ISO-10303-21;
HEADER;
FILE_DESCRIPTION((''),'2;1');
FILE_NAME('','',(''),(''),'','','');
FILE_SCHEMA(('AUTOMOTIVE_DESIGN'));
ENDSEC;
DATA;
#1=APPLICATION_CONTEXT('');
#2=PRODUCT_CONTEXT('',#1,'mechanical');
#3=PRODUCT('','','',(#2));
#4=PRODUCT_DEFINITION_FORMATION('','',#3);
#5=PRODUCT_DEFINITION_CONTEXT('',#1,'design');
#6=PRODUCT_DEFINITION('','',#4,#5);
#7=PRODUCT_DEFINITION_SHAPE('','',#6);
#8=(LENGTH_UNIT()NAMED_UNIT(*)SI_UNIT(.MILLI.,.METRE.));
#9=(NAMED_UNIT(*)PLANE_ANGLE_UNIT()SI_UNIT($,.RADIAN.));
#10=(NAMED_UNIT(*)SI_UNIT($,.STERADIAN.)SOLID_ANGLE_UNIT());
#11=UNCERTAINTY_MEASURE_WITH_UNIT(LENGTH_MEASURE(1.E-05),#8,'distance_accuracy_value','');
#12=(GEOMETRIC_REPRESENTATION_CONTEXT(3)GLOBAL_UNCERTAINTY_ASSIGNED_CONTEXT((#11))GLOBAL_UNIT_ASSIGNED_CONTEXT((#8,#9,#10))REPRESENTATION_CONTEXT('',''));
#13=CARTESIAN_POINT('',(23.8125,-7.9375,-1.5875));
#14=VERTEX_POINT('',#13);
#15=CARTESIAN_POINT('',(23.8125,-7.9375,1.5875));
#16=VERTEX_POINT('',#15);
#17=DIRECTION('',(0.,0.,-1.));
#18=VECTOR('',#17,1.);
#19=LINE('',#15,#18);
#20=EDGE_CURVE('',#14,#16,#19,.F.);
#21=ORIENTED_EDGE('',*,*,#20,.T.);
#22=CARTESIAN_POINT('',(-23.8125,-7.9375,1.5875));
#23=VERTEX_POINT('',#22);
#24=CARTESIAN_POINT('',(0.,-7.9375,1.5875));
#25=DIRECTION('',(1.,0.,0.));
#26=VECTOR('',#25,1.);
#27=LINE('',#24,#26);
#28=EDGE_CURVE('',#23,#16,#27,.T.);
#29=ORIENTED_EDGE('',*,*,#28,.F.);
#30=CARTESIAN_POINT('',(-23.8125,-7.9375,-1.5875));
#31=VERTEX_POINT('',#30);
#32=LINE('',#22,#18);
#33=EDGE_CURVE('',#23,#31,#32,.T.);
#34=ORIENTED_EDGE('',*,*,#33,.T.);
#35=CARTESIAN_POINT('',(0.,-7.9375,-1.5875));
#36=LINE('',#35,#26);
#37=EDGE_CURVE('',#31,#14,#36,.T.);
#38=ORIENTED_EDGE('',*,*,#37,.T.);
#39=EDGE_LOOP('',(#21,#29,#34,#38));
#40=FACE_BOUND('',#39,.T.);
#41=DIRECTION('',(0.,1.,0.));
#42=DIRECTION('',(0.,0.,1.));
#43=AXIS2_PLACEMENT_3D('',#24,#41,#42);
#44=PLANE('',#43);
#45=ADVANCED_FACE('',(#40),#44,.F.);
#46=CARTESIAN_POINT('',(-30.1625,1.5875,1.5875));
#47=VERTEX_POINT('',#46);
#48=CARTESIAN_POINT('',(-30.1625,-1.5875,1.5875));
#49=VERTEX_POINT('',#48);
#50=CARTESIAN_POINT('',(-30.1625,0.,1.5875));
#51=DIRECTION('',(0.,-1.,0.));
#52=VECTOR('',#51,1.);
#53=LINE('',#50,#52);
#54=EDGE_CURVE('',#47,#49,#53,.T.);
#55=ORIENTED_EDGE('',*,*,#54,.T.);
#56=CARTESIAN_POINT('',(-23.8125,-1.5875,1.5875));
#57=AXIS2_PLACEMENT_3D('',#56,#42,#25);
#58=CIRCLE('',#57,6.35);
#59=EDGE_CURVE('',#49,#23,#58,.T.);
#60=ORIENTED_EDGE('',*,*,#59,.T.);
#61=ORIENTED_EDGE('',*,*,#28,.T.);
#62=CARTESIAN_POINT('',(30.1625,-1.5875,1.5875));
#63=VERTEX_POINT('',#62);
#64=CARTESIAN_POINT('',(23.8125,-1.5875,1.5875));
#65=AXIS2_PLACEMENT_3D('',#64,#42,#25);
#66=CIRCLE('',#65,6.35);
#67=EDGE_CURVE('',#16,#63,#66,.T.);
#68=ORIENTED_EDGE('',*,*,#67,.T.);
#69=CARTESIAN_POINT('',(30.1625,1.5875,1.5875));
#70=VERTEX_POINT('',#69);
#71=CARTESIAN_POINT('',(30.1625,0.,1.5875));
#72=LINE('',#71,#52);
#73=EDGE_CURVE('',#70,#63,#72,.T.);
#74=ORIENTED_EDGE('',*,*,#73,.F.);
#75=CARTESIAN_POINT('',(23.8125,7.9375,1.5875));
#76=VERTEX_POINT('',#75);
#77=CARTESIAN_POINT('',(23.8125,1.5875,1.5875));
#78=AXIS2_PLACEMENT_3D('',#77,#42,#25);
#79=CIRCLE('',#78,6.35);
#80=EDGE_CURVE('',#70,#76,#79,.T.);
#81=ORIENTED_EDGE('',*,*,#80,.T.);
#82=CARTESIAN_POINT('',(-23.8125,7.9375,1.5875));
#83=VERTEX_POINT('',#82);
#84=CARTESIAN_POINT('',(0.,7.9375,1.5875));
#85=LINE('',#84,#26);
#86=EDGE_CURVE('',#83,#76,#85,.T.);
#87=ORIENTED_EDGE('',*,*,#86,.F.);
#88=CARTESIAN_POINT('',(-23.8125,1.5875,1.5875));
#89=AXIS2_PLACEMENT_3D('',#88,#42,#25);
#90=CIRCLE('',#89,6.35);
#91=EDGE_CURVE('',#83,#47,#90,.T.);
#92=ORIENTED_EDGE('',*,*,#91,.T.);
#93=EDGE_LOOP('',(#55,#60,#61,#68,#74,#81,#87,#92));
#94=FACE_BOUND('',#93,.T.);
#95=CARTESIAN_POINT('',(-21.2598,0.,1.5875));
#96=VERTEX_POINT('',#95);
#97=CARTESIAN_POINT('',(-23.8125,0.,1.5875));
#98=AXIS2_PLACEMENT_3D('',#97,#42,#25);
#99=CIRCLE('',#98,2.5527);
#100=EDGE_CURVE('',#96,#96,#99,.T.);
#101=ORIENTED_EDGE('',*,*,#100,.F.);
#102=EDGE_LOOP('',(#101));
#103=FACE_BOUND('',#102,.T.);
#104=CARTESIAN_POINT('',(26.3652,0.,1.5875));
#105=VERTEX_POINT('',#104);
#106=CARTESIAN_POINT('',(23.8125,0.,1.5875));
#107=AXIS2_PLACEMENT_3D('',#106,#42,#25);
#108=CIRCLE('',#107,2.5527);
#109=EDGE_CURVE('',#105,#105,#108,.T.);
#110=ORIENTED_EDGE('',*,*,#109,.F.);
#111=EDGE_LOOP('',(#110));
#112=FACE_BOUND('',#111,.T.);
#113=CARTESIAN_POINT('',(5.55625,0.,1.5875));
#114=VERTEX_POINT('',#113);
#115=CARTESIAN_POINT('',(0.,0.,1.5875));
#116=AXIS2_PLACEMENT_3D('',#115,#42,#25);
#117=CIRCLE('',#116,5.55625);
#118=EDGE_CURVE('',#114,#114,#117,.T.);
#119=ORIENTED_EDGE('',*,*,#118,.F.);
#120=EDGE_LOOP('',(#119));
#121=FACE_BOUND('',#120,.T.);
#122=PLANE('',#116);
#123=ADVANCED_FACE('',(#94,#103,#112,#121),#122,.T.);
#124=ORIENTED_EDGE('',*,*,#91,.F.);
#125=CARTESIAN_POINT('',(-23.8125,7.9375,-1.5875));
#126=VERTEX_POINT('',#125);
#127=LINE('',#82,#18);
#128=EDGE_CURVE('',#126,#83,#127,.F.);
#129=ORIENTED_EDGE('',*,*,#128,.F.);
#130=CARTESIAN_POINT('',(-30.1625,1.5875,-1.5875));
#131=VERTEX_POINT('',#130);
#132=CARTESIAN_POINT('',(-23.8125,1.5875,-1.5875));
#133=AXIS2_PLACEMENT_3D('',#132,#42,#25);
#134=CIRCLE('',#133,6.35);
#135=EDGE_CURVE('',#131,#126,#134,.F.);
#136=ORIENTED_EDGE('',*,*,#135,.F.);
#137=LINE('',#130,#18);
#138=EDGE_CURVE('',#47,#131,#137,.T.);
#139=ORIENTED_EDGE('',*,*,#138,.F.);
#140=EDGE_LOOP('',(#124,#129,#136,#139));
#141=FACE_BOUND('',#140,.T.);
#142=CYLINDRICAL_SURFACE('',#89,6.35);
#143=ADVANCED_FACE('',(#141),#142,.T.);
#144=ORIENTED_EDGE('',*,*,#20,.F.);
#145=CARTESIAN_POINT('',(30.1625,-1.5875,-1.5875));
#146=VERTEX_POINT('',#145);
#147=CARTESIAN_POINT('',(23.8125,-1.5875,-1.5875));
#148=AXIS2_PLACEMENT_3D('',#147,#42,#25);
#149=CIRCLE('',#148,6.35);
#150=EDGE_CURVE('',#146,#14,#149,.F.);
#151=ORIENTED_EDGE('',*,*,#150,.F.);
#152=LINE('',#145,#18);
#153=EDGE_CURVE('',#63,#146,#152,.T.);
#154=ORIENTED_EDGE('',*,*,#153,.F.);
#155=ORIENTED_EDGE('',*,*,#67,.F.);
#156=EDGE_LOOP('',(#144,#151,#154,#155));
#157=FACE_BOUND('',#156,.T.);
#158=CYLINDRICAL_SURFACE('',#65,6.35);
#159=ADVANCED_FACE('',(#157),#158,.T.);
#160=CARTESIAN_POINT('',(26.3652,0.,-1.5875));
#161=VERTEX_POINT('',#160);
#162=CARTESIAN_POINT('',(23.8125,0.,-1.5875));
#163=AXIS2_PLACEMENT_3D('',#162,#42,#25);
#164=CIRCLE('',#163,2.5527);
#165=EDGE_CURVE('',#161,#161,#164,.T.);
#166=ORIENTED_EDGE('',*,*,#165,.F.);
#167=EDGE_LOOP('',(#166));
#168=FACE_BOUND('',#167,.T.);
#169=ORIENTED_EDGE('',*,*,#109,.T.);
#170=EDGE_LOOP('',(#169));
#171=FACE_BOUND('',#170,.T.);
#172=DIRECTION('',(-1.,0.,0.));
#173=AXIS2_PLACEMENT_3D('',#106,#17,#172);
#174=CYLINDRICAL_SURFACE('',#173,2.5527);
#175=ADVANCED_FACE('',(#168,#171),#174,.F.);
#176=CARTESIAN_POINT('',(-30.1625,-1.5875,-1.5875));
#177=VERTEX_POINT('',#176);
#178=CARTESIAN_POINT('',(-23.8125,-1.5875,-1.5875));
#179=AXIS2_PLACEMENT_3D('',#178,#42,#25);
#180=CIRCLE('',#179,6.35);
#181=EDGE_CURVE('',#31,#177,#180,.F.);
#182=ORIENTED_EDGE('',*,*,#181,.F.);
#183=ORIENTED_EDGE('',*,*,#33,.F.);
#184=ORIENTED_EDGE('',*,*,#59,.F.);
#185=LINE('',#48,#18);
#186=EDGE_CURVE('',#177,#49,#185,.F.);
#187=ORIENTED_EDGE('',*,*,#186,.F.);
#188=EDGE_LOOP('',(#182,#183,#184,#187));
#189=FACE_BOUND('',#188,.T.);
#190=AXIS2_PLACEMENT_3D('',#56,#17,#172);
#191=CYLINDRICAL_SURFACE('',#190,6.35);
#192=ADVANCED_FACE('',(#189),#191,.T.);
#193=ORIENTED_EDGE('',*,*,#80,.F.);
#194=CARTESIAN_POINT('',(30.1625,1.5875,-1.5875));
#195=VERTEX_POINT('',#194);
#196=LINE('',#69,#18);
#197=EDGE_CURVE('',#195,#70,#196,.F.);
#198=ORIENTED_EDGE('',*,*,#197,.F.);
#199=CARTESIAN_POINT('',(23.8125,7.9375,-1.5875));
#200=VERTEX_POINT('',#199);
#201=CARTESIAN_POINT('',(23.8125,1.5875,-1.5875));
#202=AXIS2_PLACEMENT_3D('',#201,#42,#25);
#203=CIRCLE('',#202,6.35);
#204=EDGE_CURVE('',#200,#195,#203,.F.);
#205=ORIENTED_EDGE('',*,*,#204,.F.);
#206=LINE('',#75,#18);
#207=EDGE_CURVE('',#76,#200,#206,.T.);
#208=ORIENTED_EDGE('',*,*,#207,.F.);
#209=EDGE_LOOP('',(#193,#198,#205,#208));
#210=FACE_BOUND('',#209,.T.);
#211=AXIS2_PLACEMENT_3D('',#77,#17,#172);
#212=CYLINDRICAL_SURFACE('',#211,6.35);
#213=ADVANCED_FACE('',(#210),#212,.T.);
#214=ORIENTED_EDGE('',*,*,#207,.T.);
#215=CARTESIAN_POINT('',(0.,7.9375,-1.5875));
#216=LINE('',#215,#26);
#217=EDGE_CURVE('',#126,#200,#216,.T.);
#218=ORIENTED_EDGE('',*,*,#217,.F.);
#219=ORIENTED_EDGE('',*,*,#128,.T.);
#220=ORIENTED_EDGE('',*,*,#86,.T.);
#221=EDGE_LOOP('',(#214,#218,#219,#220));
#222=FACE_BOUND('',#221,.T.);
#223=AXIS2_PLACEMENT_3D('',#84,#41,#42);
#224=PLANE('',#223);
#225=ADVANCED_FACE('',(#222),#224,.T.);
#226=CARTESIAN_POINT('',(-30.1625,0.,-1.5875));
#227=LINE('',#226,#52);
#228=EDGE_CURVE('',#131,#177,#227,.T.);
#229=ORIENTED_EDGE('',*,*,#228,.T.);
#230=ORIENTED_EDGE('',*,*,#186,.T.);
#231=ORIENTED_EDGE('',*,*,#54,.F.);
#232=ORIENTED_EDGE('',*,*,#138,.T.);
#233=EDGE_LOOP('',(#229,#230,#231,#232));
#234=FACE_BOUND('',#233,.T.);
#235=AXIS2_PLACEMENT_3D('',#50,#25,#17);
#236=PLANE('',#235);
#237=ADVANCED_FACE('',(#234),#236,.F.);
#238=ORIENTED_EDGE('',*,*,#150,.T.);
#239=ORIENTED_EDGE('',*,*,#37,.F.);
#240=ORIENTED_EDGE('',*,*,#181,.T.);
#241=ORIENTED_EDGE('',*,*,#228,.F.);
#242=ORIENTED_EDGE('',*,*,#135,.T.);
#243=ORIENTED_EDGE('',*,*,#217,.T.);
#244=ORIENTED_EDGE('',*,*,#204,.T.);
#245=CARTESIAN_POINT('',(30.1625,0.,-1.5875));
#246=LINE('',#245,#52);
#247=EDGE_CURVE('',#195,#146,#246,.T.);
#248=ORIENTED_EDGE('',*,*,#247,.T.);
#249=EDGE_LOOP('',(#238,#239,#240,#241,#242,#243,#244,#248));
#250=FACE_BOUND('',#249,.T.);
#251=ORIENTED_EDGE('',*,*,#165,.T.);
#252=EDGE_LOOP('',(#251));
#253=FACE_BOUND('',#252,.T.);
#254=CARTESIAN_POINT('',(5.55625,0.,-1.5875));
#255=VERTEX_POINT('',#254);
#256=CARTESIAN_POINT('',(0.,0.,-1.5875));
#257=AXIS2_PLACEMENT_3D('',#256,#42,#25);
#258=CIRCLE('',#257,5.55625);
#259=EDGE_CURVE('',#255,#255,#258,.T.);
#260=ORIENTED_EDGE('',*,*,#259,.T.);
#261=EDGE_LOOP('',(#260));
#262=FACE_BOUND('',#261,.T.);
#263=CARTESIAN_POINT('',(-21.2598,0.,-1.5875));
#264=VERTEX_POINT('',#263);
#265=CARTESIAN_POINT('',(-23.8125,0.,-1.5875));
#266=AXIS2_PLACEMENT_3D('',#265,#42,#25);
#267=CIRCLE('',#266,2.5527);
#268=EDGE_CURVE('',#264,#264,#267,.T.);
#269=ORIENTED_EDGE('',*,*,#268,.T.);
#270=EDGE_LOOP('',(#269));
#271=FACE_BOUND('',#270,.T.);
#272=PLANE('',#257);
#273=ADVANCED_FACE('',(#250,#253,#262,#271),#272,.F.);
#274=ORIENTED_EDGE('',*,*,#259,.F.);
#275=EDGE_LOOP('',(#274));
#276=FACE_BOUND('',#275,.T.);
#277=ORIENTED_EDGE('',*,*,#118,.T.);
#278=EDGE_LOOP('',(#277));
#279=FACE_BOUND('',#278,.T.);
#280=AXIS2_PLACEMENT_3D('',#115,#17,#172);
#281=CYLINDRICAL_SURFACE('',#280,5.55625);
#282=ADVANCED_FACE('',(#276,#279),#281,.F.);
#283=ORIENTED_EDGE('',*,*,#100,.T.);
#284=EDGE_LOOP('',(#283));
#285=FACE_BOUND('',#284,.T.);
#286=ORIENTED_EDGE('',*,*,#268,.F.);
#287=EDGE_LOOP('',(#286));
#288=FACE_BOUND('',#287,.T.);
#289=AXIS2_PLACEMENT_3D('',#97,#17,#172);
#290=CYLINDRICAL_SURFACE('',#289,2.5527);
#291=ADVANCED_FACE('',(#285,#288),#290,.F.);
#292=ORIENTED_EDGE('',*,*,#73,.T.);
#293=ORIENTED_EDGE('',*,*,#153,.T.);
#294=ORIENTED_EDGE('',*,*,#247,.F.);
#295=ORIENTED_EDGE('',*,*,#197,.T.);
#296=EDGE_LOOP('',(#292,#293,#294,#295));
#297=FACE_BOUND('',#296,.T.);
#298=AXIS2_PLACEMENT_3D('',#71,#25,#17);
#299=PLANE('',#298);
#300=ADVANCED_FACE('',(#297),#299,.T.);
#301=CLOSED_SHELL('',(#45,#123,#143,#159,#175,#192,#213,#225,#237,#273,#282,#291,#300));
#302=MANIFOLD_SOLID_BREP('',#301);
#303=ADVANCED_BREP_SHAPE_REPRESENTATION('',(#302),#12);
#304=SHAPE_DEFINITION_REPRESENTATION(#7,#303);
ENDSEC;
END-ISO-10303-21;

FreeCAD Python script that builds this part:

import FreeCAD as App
import Part
import Sketcher
from FreeCAD import Vector
Q = App.Units.Quantity


def edges_at(feature, points):
    """Names of the edges that pass closest to the given points."""
    edges = feature.Shape.Edges
    near = lambda p: min(range(len(edges)), key=lambda i: edges[i].distToShape(Part.Vertex(*p))[0])
    return sorted({f"Edge{near(p) + 1}" for p in points})

doc = App.newDocument("Part")
body = doc.addObject("PartDesign::Body", "Body")

sketch1 = body.newObject("Sketcher::SketchObject", "Sketch")
sketch1.AttachmentSupport = (doc.getObject("XY_Plane"), [""])
sketch1.MapMode = "FlatFace"
sketch1.addGeometry(Part.LineSegment(Vector(-30.2, 7.9, 0), Vector(-30.2, -7.9, 0)), False)
sketch1.addGeometry(Part.LineSegment(Vector(-30.2, -7.9, 0), Vector(30.2, -7.9, 0)), False)
sketch1.addGeometry(Part.LineSegment(Vector(30.2, -7.9, 0), Vector(30.2, 7.9, 0)), False)
sketch1.addGeometry(Part.LineSegment(Vector(30.2, 7.9, 0), Vector(-30.2, 7.9, 0)), False)
sketch1.addGeometry(Part.Circle(Vector(-23.8, 0, 0), Vector(0, 0, 1), 2.6), False)
sketch1.addGeometry(Part.Circle(Vector(0, 0, 0), Vector(0, 0, 1), 5.6), False)
sketch1.addGeometry(Part.Circle(Vector(23.8, 0, 0), Vector(0, 0, 1), 2.6), False)
sketch1.addConstraint(Sketcher.Constraint("Coincident", 0, 2, 1, 1))
sketch1.addConstraint(Sketcher.Constraint("Coincident", 1, 2, 2, 1))
sketch1.addConstraint(Sketcher.Constraint("Coincident", 2, 2, 3, 1))
sketch1.addConstraint(Sketcher.Constraint("Coincident", 3, 2, 0, 1))
sketch1.addConstraint(Sketcher.Constraint("Vertical", 0))
sketch1.addConstraint(Sketcher.Constraint("Horizontal", 1))
sketch1.addConstraint(Sketcher.Constraint("Vertical", 2))
sketch1.addConstraint(Sketcher.Constraint("Horizontal", 3))
sketch1.addConstraint(Sketcher.Constraint("Coincident", 5, 3, -1, 1))
sketch1.addConstraint(Sketcher.Constraint("Equal", 4, 6))
sketch1.addConstraint(Sketcher.Constraint("Symmetric", 4, 3, 6, 3, -1, 1))
sketch1.addConstraint(Sketcher.Constraint("Symmetric", 0, 2, 2, 2, -1, 1))
sketch1.addConstraint(Sketcher.Constraint("PointOnObject", 4, 3, -1))
sketch1.addConstraint(Sketcher.Constraint("Diameter", 4, Q("0.201 in")))
sketch1.addConstraint(Sketcher.Constraint("Diameter", 5, Q("0.4375 in")))
sketch1.addConstraint(Sketcher.Constraint("DistanceX", 1, 1, 1, 2, Q("2.375 in")))
sketch1.addConstraint(Sketcher.Constraint("DistanceY", 0, 2, 0, 1, Q("0.625 in")))
sketch1.addConstraint(Sketcher.Constraint("DistanceX", 0, 2, 4, 3, Q("0.25 in")))
pad1 = body.newObject("PartDesign::Pad", "Pad")
pad1.Profile = sketch1
pad1.Length = Q("0.125 in")
pad1.Midplane = True
doc.recompute()

fillet = body.newObject("PartDesign::Fillet", "Fillet")
fillet.Base = (pad1, edges_at(pad1, [
    (30.163, -7.938, 0),
    (-30.163, -7.938, 0),
    (-30.163, 7.938, 0),
    (30.163, 7.938, 0),
]))
fillet.Radius = Q("0.25 in")

doc.recompute()
